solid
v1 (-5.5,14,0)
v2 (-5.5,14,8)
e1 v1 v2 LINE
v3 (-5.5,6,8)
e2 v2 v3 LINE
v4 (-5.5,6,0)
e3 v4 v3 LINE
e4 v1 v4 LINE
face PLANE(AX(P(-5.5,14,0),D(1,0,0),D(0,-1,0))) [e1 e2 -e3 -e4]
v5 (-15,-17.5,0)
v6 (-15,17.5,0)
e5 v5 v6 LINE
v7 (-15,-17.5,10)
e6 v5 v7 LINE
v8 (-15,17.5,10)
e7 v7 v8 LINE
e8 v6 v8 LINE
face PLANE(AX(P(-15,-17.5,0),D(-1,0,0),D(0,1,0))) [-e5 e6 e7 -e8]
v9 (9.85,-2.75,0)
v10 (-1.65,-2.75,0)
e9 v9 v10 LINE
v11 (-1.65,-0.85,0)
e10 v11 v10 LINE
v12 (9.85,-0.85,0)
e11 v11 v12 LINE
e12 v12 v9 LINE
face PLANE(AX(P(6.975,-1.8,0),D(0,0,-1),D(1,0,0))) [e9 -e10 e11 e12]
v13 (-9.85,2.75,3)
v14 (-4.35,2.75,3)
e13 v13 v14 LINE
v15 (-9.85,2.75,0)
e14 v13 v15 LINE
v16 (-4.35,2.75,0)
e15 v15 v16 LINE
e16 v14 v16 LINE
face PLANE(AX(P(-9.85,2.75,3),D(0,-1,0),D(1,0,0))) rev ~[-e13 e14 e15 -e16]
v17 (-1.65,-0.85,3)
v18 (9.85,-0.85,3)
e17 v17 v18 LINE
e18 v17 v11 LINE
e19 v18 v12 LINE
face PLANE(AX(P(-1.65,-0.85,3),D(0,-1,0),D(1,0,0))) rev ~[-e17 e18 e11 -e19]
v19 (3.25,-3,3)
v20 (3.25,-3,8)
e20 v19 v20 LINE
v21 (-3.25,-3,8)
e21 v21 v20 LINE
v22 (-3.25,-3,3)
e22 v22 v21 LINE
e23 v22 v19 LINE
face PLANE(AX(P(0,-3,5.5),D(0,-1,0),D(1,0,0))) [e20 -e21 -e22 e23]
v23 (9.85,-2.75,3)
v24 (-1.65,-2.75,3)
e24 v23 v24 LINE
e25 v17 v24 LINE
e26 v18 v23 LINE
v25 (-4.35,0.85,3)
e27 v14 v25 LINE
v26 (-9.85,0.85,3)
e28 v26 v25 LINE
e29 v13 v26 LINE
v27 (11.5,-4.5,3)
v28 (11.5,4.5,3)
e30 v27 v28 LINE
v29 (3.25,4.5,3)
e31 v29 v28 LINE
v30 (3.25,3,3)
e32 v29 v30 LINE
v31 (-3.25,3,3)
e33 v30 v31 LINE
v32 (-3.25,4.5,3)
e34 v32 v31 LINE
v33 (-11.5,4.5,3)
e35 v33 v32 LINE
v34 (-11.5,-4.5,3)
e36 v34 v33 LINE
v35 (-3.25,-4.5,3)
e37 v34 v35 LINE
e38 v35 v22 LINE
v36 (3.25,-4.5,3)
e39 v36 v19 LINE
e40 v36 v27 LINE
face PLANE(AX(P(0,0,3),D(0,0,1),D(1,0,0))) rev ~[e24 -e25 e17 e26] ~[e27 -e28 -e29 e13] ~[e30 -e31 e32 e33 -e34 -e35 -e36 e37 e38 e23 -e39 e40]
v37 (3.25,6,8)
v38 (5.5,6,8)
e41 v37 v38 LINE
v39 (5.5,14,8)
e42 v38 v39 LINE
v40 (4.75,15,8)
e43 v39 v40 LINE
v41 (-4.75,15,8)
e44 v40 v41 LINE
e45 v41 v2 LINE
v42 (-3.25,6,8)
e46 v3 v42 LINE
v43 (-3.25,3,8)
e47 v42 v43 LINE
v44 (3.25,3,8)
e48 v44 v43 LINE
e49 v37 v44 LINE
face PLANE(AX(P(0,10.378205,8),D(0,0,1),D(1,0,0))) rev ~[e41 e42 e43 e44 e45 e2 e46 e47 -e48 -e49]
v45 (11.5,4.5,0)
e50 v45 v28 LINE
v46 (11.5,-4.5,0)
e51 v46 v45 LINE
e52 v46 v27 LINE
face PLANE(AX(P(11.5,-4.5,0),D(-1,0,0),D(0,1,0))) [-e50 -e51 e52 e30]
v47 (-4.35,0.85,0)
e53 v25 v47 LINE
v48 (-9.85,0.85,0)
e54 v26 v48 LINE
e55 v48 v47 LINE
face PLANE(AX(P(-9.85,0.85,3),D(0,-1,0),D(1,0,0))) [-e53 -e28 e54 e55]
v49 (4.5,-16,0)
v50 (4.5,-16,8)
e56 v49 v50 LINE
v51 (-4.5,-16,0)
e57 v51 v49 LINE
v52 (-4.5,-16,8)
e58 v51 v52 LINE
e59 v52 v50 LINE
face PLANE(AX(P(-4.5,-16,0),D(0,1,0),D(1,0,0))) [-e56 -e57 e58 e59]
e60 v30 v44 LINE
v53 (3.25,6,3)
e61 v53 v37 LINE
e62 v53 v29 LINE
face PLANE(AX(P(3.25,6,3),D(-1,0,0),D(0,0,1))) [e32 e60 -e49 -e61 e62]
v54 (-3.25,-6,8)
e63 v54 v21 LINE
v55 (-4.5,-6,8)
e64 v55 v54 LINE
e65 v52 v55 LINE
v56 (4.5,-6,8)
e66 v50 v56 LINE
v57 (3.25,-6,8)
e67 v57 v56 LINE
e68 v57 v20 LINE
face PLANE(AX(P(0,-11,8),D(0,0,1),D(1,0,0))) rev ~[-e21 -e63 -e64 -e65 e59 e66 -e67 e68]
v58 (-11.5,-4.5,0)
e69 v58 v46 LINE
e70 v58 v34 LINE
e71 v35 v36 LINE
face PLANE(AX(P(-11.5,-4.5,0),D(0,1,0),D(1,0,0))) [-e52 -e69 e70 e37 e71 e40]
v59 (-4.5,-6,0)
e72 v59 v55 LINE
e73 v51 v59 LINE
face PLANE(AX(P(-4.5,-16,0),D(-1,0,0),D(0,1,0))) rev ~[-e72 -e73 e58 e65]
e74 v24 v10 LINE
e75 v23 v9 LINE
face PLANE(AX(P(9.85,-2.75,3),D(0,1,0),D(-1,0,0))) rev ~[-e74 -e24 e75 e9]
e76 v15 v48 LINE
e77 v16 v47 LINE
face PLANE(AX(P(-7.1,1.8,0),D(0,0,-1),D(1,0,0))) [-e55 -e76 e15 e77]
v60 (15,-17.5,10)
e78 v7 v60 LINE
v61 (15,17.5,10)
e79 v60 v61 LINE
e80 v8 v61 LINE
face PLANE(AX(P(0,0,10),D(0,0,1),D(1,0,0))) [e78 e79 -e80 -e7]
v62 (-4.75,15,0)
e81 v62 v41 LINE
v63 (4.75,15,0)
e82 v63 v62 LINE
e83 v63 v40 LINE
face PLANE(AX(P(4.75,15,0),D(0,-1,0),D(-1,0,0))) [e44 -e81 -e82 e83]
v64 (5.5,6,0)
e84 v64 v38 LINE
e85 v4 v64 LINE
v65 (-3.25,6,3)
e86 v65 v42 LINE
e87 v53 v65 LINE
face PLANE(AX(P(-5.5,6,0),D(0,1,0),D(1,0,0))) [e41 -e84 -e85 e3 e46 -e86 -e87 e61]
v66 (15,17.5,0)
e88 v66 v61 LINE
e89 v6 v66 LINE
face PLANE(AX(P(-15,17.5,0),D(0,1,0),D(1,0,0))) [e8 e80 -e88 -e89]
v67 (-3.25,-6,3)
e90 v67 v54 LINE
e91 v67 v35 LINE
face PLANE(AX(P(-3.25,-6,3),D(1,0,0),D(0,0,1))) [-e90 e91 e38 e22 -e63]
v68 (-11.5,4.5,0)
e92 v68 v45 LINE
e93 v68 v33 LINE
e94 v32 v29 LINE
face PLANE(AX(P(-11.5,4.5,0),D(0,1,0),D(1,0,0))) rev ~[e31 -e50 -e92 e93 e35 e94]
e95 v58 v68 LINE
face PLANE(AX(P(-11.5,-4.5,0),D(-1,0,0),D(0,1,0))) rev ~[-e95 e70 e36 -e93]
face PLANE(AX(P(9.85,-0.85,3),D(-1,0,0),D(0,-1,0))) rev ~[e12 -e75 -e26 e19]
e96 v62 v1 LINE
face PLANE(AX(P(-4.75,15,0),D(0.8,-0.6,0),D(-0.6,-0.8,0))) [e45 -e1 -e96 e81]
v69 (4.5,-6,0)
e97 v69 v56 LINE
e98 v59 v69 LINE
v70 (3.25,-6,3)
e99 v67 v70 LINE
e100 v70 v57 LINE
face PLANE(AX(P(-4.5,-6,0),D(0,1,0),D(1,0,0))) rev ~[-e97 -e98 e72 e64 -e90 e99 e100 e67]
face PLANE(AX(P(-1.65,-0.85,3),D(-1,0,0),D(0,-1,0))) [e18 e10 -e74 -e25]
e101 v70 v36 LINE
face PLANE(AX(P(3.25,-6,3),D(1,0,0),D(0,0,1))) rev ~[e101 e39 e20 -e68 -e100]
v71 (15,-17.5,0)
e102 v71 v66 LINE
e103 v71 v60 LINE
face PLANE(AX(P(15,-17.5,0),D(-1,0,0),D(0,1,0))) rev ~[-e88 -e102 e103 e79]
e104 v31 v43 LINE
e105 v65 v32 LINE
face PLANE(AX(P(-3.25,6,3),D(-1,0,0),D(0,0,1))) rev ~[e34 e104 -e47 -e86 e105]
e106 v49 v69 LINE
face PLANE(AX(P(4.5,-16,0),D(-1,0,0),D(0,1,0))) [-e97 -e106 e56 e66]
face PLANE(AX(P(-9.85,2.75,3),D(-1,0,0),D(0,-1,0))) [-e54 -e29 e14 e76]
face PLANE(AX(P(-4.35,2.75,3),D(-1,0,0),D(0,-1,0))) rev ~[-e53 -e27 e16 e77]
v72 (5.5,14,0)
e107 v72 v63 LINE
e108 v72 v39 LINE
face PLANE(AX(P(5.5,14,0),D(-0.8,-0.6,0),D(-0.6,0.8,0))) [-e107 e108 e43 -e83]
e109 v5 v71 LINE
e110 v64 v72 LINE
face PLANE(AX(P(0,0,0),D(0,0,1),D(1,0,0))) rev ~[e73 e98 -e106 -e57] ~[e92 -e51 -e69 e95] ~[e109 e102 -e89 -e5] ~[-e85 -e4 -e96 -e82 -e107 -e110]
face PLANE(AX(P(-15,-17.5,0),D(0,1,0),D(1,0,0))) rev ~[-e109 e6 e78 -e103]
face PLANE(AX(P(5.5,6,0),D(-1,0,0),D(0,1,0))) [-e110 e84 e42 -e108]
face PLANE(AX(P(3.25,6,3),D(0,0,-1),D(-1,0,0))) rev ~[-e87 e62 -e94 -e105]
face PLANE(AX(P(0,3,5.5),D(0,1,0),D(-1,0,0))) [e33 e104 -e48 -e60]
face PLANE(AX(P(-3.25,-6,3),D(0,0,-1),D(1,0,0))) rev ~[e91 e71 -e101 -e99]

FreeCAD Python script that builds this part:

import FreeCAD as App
import Part
import Sketcher
Q = App.Units.Quantity

doc = App.newDocument("Part")
params = doc.addObject("Spreadsheet::Sheet", "Params")
for row, (alias, value) in enumerate([
    ("sketch1_width", "30 mm"),
    ("sketch1_height", "35 mm"),
    ("pad1_length", "10 mm"),
    ("sketch2_width", "23 mm"),
    ("sketch2_height", "9 mm"),
    ("pocket1_length", "3 mm"),
    ("sketch3_width", "11 mm"),
    ("sketch3_height", "8 mm"),
    ("sketch3_width2", "9.5 mm"),
    ("pocket2_length", "8 mm"),
    ("sketch4_width", "9 mm"),
    ("sketch4_height", "10 mm"),
    ("pocket3_length", "8 mm"),
    ("sketch5_width", "11.5 mm"),
    ("sketch5_width2", "5.5 mm"),
    ("sketch5_height", "1.9 mm"),
    ("pad2_length", "3 mm"),
    ("sketch6_height", "5 mm"),
    ("sketch6_width", "6.5 mm"),
    ("pocket4_length", "3 mm"),
    ("sketch7_height", "5 mm"),
    ("sketch7_width", "6.5 mm"),
    ("pocket5_length", "3 mm"),
], start=1):
    params.set(f"A{row}", alias)
    params.set(f"B{row}", "=" + value)
    params.setAlias(f"B{row}", alias)

body = doc.addObject("PartDesign::Body", "Body")

# Sketch on XY plane
sketch1 = body.newObject("Sketcher::SketchObject", "Sketch")
sketch1.AttachmentSupport = (doc.getObject("XY_Plane"), [""])
sketch1.MapMode = "FlatFace"
sketch1.addGeometry([
    Part.LineSegment(App.Vector(-15, 17.5, 0), App.Vector(-15, -17.5, 0)),
    Part.LineSegment(App.Vector(-15, -17.5, 0), App.Vector(15, -17.5, 0)),
    Part.LineSegment(App.Vector(15, -17.5, 0), App.Vector(15, 17.5, 0)),
    Part.LineSegment(App.Vector(15, 17.5, 0), App.Vector(-15, 17.5, 0)),
], False)
sketch1.addConstraint([
    Sketcher.Constraint("Coincident", 0, 2, 1, 1),
    Sketcher.Constraint("Coincident", 1, 2, 2, 1),
    Sketcher.Constraint("Coincident", 2, 2, 3, 1),
    Sketcher.Constraint("Coincident", 3, 2, 0, 1),
    Sketcher.Constraint("Vertical", 0),
    Sketcher.Constraint("Horizontal", 1),
    Sketcher.Constraint("Vertical", 2),
    Sketcher.Constraint("Horizontal", 3),
    Sketcher.Constraint("Symmetric", 0, 2, 2, 2, -1, 1),
    Sketcher.Constraint("DistanceX", 1, 1, 1, 2, Q("30 mm")),
    Sketcher.Constraint("DistanceY", 0, 2, 0, 1, Q("35 mm")),
])
sketch1.setExpression("Constraints[9]", "Params.sketch1_width")
sketch1.setExpression("Constraints[10]", "Params.sketch1_height")
pad1 = body.newObject("PartDesign::Pad", "Pad")
pad1.Profile = sketch1
pad1.setExpression("Length", "Params.pad1_length")

# Sketch on XY plane
sketch2 = body.newObject("Sketcher::SketchObject", "Sketch001")
sketch2.AttachmentSupport = (doc.getObject("XY_Plane"), [""])
sketch2.MapMode = "FlatFace"
sketch2.addGeometry([
    Part.LineSegment(App.Vector(-11.5, 4.5, 0), App.Vector(-11.5, -4.5, 0)),
    Part.LineSegment(App.Vector(-11.5, -4.5, 0), App.Vector(11.5, -4.5, 0)),
    Part.LineSegment(App.Vector(11.5, -4.5, 0), App.Vector(11.5, 4.5, 0)),
    Part.LineSegment(App.Vector(11.5, 4.5, 0), App.Vector(-11.5, 4.5, 0)),
], False)
sketch2.addConstraint([
    Sketcher.Constraint("Coincident", 0, 2, 1, 1),
    Sketcher.Constraint("Coincident", 1, 2, 2, 1),
    Sketcher.Constraint("Coincident", 2, 2, 3, 1),
    Sketcher.Constraint("Coincident", 3, 2, 0, 1),
    Sketcher.Constraint("Vertical", 0),
    Sketcher.Constraint("Horizontal", 1),
    Sketcher.Constraint("Vertical", 2),
    Sketcher.Constraint("Horizontal", 3),
    Sketcher.Constraint("Symmetric", 0, 2, 2, 2, -1, 1),
    Sketcher.Constraint("DistanceX", 1, 1, 1, 2, Q("23 mm")),
    Sketcher.Constraint("DistanceY", 0, 2, 0, 1, Q("9 mm")),
])
sketch2.setExpression("Constraints[9]", "Params.sketch2_width")
sketch2.setExpression("Constraints[10]", "Params.sketch2_height")
pocket1 = body.newObject("PartDesign::Pocket", "Pocket")
pocket1.Profile = sketch2
pocket1.setExpression("Length", "Params.pocket1_length")
pocket1.Reversed = True

# Sketch on XY plane
sketch3 = body.newObject("Sketcher::SketchObject", "Sketch002")
sketch3.AttachmentSupport = (doc.getObject("XY_Plane"), [""])
sketch3.MapMode = "FlatFace"
sketch3.addGeometry([
    Part.LineSegment(App.Vector(-5.5, 14, 0), App.Vector(-5.5, 6, 0)),  # 0
    Part.LineSegment(App.Vector(-5.5, 6, 0), App.Vector(5.5, 6, 0)),  # 1
    Part.LineSegment(App.Vector(5.5, 6, 0), App.Vector(5.5, 14, 0)),  # 2
    Part.LineSegment(App.Vector(5.5, 14, 0), App.Vector(4.75, 15, 0)),  # 3
    Part.LineSegment(App.Vector(4.75, 15, 0), App.Vector(-4.75, 15, 0)),  # 4
    Part.LineSegment(App.Vector(-4.75, 15, 0), App.Vector(-5.5, 14, 0)),  # 5
], False)
sketch3.addConstraint([
    Sketcher.Constraint("Coincident", 0, 2, 1, 1),
    Sketcher.Constraint("Coincident", 1, 2, 2, 1),
    Sketcher.Constraint("Coincident", 2, 2, 3, 1),
    Sketcher.Constraint("Coincident", 3, 2, 4, 1),
    Sketcher.Constraint("Coincident", 4, 2, 5, 1),
    Sketcher.Constraint("Coincident", 5, 2, 0, 1),
    Sketcher.Constraint("Vertical", 0),
    Sketcher.Constraint("Horizontal", 1),
    Sketcher.Constraint("Vertical", 2),
    Sketcher.Constraint("Horizontal", 4),
    Sketcher.Constraint("Symmetric", 2, 2, 5, 2, -2),
    Sketcher.Constraint("Equal", 3, 5),
    Sketcher.Constraint("DistanceX", 1, 1, 1, 2, Q("11 mm")),
    Sketcher.Constraint("DistanceY", 0, 2, 0, 1, Q("8 mm")),
    Sketcher.Constraint("DistanceX", 4, 2, 4, 1, Q("9.5 mm")),
    Sketcher.Constraint("DistanceY", -1, 1, 0, 2, Q("6 mm")),
    Sketcher.Constraint("DistanceY", -1, 1, 3, 2, Q("15 mm")),
])
sketch3.setExpression("Constraints[12]", "Params.sketch3_width")
sketch3.setExpression("Constraints[13]", "Params.sketch3_height")
sketch3.setExpression("Constraints[14]", "Params.sketch3_width2")
pocket2 = body.newObject("PartDesign::Pocket", "Pocket001")
pocket2.Profile = sketch3
pocket2.setExpression("Length", "Params.pocket2_length")
pocket2.Reversed = True

# Sketch on XY plane
sketch4 = body.newObject("Sketcher::SketchObject", "Sketch003")
sketch4.AttachmentSupport = (doc.getObject("XY_Plane"), [""])
sketch4.MapMode = "FlatFace"
sketch4.addGeometry([
    Part.LineSegment(App.Vector(-4.5, -6, 0), App.Vector(-4.5, -16, 0)),
    Part.LineSegment(App.Vector(-4.5, -16, 0), App.Vector(4.5, -16, 0)),
    Part.LineSegment(App.Vector(4.5, -16, 0), App.Vector(4.5, -6, 0)),
    Part.LineSegment(App.Vector(4.5, -6, 0), App.Vector(-4.5, -6, 0)),
], False)
sketch4.addConstraint([
    Sketcher.Constraint("Coincident", 0, 2, 1, 1),
    Sketcher.Constraint("Coincident", 1, 2, 2, 1),
    Sketcher.Constraint("Coincident", 2, 2, 3, 1),
    Sketcher.Constraint("Coincident", 3, 2, 0, 1),
    Sketcher.Constraint("Vertical", 0),
    Sketcher.Constraint("Horizontal", 1),
    Sketcher.Constraint("Vertical", 2),
    Sketcher.Constraint("Horizontal", 3),
    Sketcher.Constraint("DistanceX", 1, 1, 1, 2, Q("9 mm")),
    Sketcher.Constraint("DistanceY", 0, 2, 0, 1, Q("10 mm")),
    Sketcher.Constraint("DistanceY", 0, 2, -1, 1, Q("16 mm")),
    Sketcher.Constraint("DistanceX", 0, 2, -1, 1, Q("4.5 mm")),
])
sketch4.setExpression("Constraints[8]", "Params.sketch4_width")
sketch4.setExpression("Constraints[9]", "Params.sketch4_height")
pocket3 = body.newObject("PartDesign::Pocket", "Pocket002")
pocket3.Profile = sketch4
pocket3.setExpression("Length", "Params.pocket3_length")
pocket3.Reversed = True

# Sketch on XY plane
sketch5 = body.newObject("Sketcher::SketchObject", "Sketch004")
sketch5.AttachmentSupport = (doc.getObject("XY_Plane"), [""])
sketch5.MapMode = "FlatFace"
sketch5.AttachmentOffset = App.Placement(App.Vector(0, 0, 3), App.Rotation())
sketch5.addGeometry([
    Part.LineSegment(App.Vector(9.85, -0.85, 0), App.Vector(9.85, -2.75, 0)),  # 0
    Part.LineSegment(App.Vector(9.85, -2.75, 0), App.Vector(-1.65, -2.75, 0)),  # 1
    Part.LineSegment(App.Vector(-1.65, -2.75, 0), App.Vector(-1.65, -0.85, 0)),  # 2
    Part.LineSegment(App.Vector(-1.65, -0.85, 0), App.Vector(9.85, -0.85, 0)),  # 3
    Part.LineSegment(App.Vector(-9.85, 0.85, 0), App.Vector(-9.85, 2.75, 0)),  # 4
    Part.LineSegment(App.Vector(-9.85, 2.75, 0), App.Vector(-4.35, 2.75, 0)),  # 5
    Part.LineSegment(App.Vector(-4.35, 2.75, 0), App.Vector(-4.35, 0.85, 0)),  # 6
    Part.LineSegment(App.Vector(-4.35, 0.85, 0), App.Vector(-9.85, 0.85, 0)),  # 7
], False)
sketch5.addConstraint([
    Sketcher.Constraint("Coincident", 0, 2, 1, 1),
    Sketcher.Constraint("Coincident", 1, 2, 2, 1),
    Sketcher.Constraint("Coincident", 2, 2, 3, 1),
    Sketcher.Constraint("Coincident", 3, 2, 0, 1),
    Sketcher.Constraint("Coincident", 4, 2, 5, 1),
    Sketcher.Constraint("Coincident", 5, 2, 6, 1),
    Sketcher.Constraint("Coincident", 6, 2, 7, 1),
    Sketcher.Constraint("Coincident", 7, 2, 4, 1),
    Sketcher.Constraint("Vertical", 0),
    Sketcher.Constraint("Horizontal", 1),
    Sketcher.Constraint("Vertical", 2),
    Sketcher.Constraint("Horizontal", 3),
    Sketcher.Constraint("Vertical", 4),
    Sketcher.Constraint("Horizontal", 5),
    Sketcher.Constraint("Vertical", 6),
    Sketcher.Constraint("Horizontal", 7),
    Sketcher.Constraint("Symmetric", 0, 2, 4, 2, -1, 1),
    Sketcher.Constraint("Equal", 2, 4),
    Sketcher.Constraint("DistanceX", 1, 2, 1, 1, Q("11.5 mm")),
    Sketcher.Constraint("DistanceX", 5, 1, 5, 2, Q("5.5 mm")),
    Sketcher.Constraint("DistanceY", 0, 2, 0, 1, Q("1.9 mm")),
    Sketcher.Constraint("DistanceX", 4, 2, 2, 2, Q("8.2 mm")),
    Sketcher.Constraint("DistanceY", 2, 2, 4, 2, Q("3.6 mm")),
])
sketch5.setExpression("Constraints[18]", "Params.sketch5_width")
sketch5.setExpression("Constraints[19]", "Params.sketch5_width2")
sketch5.setExpression("Constraints[20]", "Params.sketch5_height")
pad2 = body.newObject("PartDesign::Pad", "Pad001")
pad2.Profile = sketch5
pad2.setExpression("Length", "Params.pad2_length")
pad2.Reversed = True

# Sketch on XZ plane
sketch6 = body.newObject("Sketcher::SketchObject", "Sketch005")
sketch6.AttachmentSupport = (doc.getObject("XZ_Plane"), [""])
sketch6.MapMode = "FlatFace"
sketch6.AttachmentOffset = App.Placement(App.Vector(0, 0, -6), App.Rotation())
sketch6.addGeometry([
    Part.LineSegment(App.Vector(3.25, 8, 0), App.Vector(3.25, 3, 0)),
    Part.LineSegment(App.Vector(3.25, 3, 0), App.Vector(-3.25, 3, 0)),
    Part.LineSegment(App.Vector(-3.25, 3, 0), App.Vector(-3.25, 8, 0)),
    Part.LineSegment(App.Vector(-3.25, 8, 0), App.Vector(3.25, 8, 0)),
], False)
sketch6.addConstraint([
    Sketcher.Constraint("Coincident", 0, 2, 1, 1),
    Sketcher.Constraint("Coincident", 1, 2, 2, 1),
    Sketcher.Constraint("Coincident", 2, 2, 3, 1),
    Sketcher.Constraint("Coincident", 3, 2, 0, 1),
    Sketcher.Constraint("Vertical", 0),
    Sketcher.Constraint("Horizontal", 1),
    Sketcher.Constraint("Vertical", 2),
    Sketcher.Constraint("Horizontal", 3),
    Sketcher.Constraint("DistanceY", 0, 2, 0, 1, Q("5 mm")),
    Sketcher.Constraint("DistanceX", 1, 2, 1, 1, Q("6.5 mm")),
    Sketcher.Constraint("DistanceY", -1, 1, 0, 2, Q("3 mm")),
    Sketcher.Constraint("DistanceX", -1, 1, 0, 2, Q("3.25 mm")),
])
sketch6.setExpression("Constraints[8]", "Params.sketch6_height")
sketch6.setExpression("Constraints[9]", "Params.sketch6_width")
pocket4 = body.newObject("PartDesign::Pocket", "Pocket003")
pocket4.Profile = sketch6
pocket4.setExpression("Length", "Params.pocket4_length")
pocket4.Reversed = True

# Sketch on XZ plane
sketch7 = body.newObject("Sketcher::SketchObject", "Sketch006")
sketch7.AttachmentSupport = (doc.getObject("XZ_Plane"), [""])
sketch7.MapMode = "FlatFace"
sketch7.AttachmentOffset = App.Placement(App.Vector(0, 0, 6), App.Rotation())
sketch7.addGeometry([
    Part.LineSegment(App.Vector(-3.25, 8, 0), App.Vector(-3.25, 3, 0)),
    Part.LineSegment(App.Vector(-3.25, 3, 0), App.Vector(3.25, 3, 0)),
    Part.LineSegment(App.Vector(3.25, 3, 0), App.Vector(3.25, 8, 0)),
    Part.LineSegment(App.Vector(3.25, 8, 0), App.Vector(-3.25, 8, 0)),
], False)
sketch7.addConstraint([
    Sketcher.Constraint("Coincident", 0, 2, 1, 1),
    Sketcher.Constraint("Coincident", 1, 2, 2, 1),
    Sketcher.Constraint("Coincident", 2, 2, 3, 1),
    Sketcher.Constraint("Coincident", 3, 2, 0, 1),
    Sketcher.Constraint("Vertical", 0),
    Sketcher.Constraint("Horizontal", 1),
    Sketcher.Constraint("Vertical", 2),
    Sketcher.Constraint("Horizontal", 3),
    Sketcher.Constraint("DistanceY", 0, 2, 0, 1, Q("5 mm")),
    Sketcher.Constraint("DistanceX", 1, 1, 1, 2, Q("6.5 mm")),
    Sketcher.Constraint("DistanceY", -1, 1, 0, 2, Q("3 mm")),
    Sketcher.Constraint("DistanceX", 0, 2, -1, 1, Q("3.25 mm")),
])
sketch7.setExpression("Constraints[8]", "Params.sketch7_height")
sketch7.setExpression("Constraints[9]", "Params.sketch7_width")
pocket5 = body.newObject("PartDesign::Pocket", "Pocket004")
pocket5.Profile = sketch7
pocket5.setExpression("Length", "Params.pocket5_length")

doc.recompute()
